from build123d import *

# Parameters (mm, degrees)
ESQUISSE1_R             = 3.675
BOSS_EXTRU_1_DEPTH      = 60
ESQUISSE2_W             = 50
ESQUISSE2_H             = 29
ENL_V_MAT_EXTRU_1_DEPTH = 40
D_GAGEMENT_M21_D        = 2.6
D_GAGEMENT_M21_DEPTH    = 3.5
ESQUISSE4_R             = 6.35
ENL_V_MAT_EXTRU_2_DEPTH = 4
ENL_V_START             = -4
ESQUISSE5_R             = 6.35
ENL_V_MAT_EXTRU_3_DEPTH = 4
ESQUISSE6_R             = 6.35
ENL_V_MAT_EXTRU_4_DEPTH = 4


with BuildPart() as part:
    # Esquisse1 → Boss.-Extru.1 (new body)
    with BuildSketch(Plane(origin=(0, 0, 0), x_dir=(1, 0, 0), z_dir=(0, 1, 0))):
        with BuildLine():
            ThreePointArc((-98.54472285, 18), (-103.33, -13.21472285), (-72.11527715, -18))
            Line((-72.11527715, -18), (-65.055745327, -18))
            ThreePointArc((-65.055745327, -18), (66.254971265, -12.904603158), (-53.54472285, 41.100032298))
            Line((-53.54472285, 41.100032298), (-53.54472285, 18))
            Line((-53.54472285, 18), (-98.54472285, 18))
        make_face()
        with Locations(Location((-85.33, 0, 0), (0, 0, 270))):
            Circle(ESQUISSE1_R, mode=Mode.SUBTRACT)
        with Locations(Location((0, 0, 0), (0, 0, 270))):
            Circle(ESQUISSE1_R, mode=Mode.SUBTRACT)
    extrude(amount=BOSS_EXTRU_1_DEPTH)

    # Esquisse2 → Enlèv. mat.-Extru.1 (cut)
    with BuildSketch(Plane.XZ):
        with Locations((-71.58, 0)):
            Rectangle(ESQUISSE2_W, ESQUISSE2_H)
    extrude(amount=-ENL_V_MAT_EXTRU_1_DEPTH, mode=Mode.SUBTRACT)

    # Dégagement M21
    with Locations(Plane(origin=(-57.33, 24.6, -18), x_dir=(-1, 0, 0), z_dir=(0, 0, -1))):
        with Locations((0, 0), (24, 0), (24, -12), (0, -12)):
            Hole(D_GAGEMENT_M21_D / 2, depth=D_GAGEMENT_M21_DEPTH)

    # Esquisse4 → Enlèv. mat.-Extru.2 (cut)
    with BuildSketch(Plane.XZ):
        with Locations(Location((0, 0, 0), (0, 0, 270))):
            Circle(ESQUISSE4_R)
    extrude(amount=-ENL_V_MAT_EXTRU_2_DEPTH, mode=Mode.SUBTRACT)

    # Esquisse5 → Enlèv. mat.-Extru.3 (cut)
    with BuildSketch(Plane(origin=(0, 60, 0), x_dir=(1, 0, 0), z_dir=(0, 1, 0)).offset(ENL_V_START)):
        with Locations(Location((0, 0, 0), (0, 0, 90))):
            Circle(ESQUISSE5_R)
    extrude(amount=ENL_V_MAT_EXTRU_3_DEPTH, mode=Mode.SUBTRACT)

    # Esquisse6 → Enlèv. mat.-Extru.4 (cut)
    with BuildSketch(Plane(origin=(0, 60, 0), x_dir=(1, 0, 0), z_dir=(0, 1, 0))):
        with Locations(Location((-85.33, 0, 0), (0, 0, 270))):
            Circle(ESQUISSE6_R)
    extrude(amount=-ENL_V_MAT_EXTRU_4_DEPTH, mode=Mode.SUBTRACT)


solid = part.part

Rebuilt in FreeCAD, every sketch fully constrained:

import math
import FreeCAD as App
import Part
import Sketcher

V = App.Vector


def add_polygon(sketch, points):
    """Adds a closed chain of lines whose ends are joined by coincident constraints."""
    first, n = sketch.GeometryCount, len(points)
    for a, b in zip(points, points[1:] + points[:1]):
        sketch.addGeometry(Part.LineSegment(App.Vector(*a, 0), App.Vector(*b, 0)), False)
    for i in range(n):
        sketch.addConstraint(Sketcher.Constraint("Coincident", first + i, 2, first + (i + 1) % n, 1))

doc = App.newDocument("Part")
body = doc.addObject("PartDesign::Body", "Body")

# Sketch on XZ plane
sketch1 = body.newObject("Sketcher::SketchObject", "Sketch")
sketch1.AttachmentSupport = (doc.getObject("XZ_Plane"), [""])
sketch1.MapMode = "FlatFace"
sketch1.addGeometry(Part.ArcOfCircle(Part.Circle(V(-85.3, 0, 0), V(0, 0, 1), 22.3), math.radians(54), math.radians(234)), False)
sketch1.addGeometry(Part.LineSegment(V(-72.1, 18, 0), V(-65.1, 18, 0)), False)
sketch1.addGeometry(Part.ArcOfCircle(Part.Circle(V(0, 0, 0), V(0, 0, 1), 67.5), math.radians(-142), math.radians(165)), False)
sketch1.addGeometry(Part.LineSegment(V(-53.5, -41.1, 0), V(-53.5, -18, 0)), False)
sketch1.addGeometry(Part.LineSegment(V(-53.5, -18, 0), V(-98.5, -18, 0)), False)
sketch1.addGeometry(Part.Circle(V(-85.3, 0, 0), V(0, 0, 1), 3.7), False)
sketch1.addGeometry(Part.Circle(V(0, 0, 0), V(0, 0, 1), 3.7), False)
sketch1.addConstraint(Sketcher.Constraint("Coincident", 0, 1, 1, 1))
sketch1.addConstraint(Sketcher.Constraint("Coincident", 1, 2, 2, 2))
sketch1.addConstraint(Sketcher.Constraint("Coincident", 2, 1, 3, 1))
sketch1.addConstraint(Sketcher.Constraint("Coincident", 3, 2, 4, 1))
sketch1.addConstraint(Sketcher.Constraint("Coincident", 4, 2, 0, 2))
sketch1.addConstraint(Sketcher.Constraint("Horizontal", 1))
sketch1.addConstraint(Sketcher.Constraint("Vertical", 3))
sketch1.addConstraint(Sketcher.Constraint("Horizontal", 4))
sketch1.addConstraint(Sketcher.Constraint("Coincident", 2, 3, -1, 1))
sketch1.addConstraint(Sketcher.Constraint("Coincident", 6, 3, -1, 1))
sketch1.addConstraint(Sketcher.Constraint("Coincident", 5, 3, 0, 3))
sketch1.addConstraint(Sketcher.Constraint("Equal", 5, 6))
sketch1.addConstraint(Sketcher.Constraint("PointOnObject", 0, 3, -1))
sketch1.addConstraint(Sketcher.Constraint("Radius", 2, 67.5))
sketch1.addConstraint(Sketcher.Constraint("Diameter", 5, 7.35))
sketch1.addConstraint(Sketcher.Constraint("DistanceX", 4, 2, 4, 1, 45.0))
sketch1.addConstraint(Sketcher.Constraint("Radius", 0, 22.33))
sketch1.addConstraint(Sketcher.Constraint("DistanceY", -1, 1, 0, 1, 18.0))
sketch1.addConstraint(Sketcher.Constraint("DistanceY", 3, 2, -1, 1, 18.0))
sketch1.addConstraint(Sketcher.Constraint("DistanceX", 0, 3, -1, 1, 85.33))
pad1 = body.newObject("PartDesign::Pad", "Pad")
pad1.Profile = sketch1
pad1.Length = 60
pad1.Reversed = True

# Sketch on XZ plane
sketch2 = body.newObject("Sketcher::SketchObject", "Sketch001")
sketch2.AttachmentSupport = (doc.getObject("XZ_Plane"), [""])
sketch2.MapMode = "FlatFace"
add_polygon(sketch2, [(-97, 14), (-97, -14), (-47, -14), (-47, 14)])  # lines 0-3
sketch2.addConstraint(Sketcher.Constraint("Vertical", 0))
sketch2.addConstraint(Sketcher.Constraint("Horizontal", 1))
sketch2.addConstraint(Sketcher.Constraint("Vertical", 2))
sketch2.addConstraint(Sketcher.Constraint("Horizontal", 3))
sketch2.addConstraint(Sketcher.Constraint("DistanceX", 1, 1, 1, 2, 50.0))
sketch2.addConstraint(Sketcher.Constraint("DistanceY", 0, 2, 0, 1, 29.0))
sketch2.addConstraint(Sketcher.Constraint("DistanceY", 0, 2, -1, 1, 14.5))
sketch2.addConstraint(Sketcher.Constraint("DistanceX", 0, 2, -1, 1, 96.58))
pocket1 = body.newObject("PartDesign::Pocket", "Pocket")
pocket1.Profile = sketch2
pocket1.Length = 40

# Sketch on XY plane
sketch3 = body.newObject("Sketcher::SketchObject", "Sketch002")
sketch3.AttachmentSupport = (doc.getObject("XY_Plane"), [""])
sketch3.MapMode = "FlatFace"
sketch3.AttachmentOffset = App.Placement(V(0, 0, -18), App.Rotation())
sketch3.addGeometry(Part.Circle(V(-57.3, 24.6, 0), V(0, 0, 1), 1.3), False)
sketch3.addGeometry(Part.Circle(V(-81.3, 24.6, 0), V(0, 0, 1), 1.3), False)
sketch3.addGeometry(Part.Circle(V(-81.3, 12.6, 0), V(0, 0, 1), 1.3), False)
sketch3.addGeometry(Part.Circle(V(-57.3, 12.6, 0), V(0, 0, 1), 1.3), False)
sketch3.addConstraint(Sketcher.Constraint("Equal", 0, 1))
sketch3.addConstraint(Sketcher.Constraint("Equal", 1, 2))
sketch3.addConstraint(Sketcher.Constraint("Equal", 2, 3))
sketch3.addConstraint(Sketcher.Constraint("Horizontal", 0, 3, 1, 3))
sketch3.addConstraint(Sketcher.Constraint("Horizontal", 2, 3, 3, 3))
sketch3.addConstraint(Sketcher.Constraint("Vertical", 1, 3, 2, 3))
sketch3.addConstraint(Sketcher.Constraint("Vertical", 0, 3, 3, 3))
sketch3.addConstraint(Sketcher.Constraint("Diameter", 0, 2.6))
sketch3.addConstraint(Sketcher.Constraint("DistanceX", 1, 3, 0, 3, 24.0))
sketch3.addConstraint(Sketcher.Constraint("DistanceY", 2, 3, 1, 3, 12.0))
sketch3.addConstraint(Sketcher.Constraint("DistanceY", -1, 1, 0, 3, 24.6))
sketch3.addConstraint(Sketcher.Constraint("DistanceX", 0, 3, -1, 1, 57.33))
doc.recompute()
hole = body.newObject("PartDesign::Hole", "Hole")
hole.Profile = sketch3
hole.ThreadType = "None"
hole.Diameter = 2.6
hole.DepthType = "Dimension"
hole.Depth = 3.5
hole.DrillPoint = "Flat"
hole.Reversed = True

# Sketch on XZ plane
sketch4 = body.newObject("Sketcher::SketchObject", "Sketch003")
sketch4.AttachmentSupport = (doc.getObject("XZ_Plane"), [""])
sketch4.MapMode = "FlatFace"
sketch4.addGeometry(Part.Circle(V(0, 0, 0), V(0, 0, 1), 6), False)
sketch4.addConstraint(Sketcher.Constraint("Coincident", 0, 3, -1, 1))
sketch4.addConstraint(Sketcher.Constraint("Diameter", 0, 12.7))
pocket2 = body.newObject("PartDesign::Pocket", "Pocket001")
pocket2.Profile = sketch4
pocket2.Length = 4

# Sketch on XZ plane
sketch5 = body.newObject("Sketcher::SketchObject", "Sketch004")
sketch5.AttachmentSupport = (doc.getObject("XZ_Plane"), [""])
sketch5.MapMode = "FlatFace"
sketch5.AttachmentOffset = App.Placement(V(0, 0, -56), App.Rotation())
sketch5.addGeometry(Part.Circle(V(0, 0, 0), V(0, 0, 1), 6), False)
sketch5.addConstraint(Sketcher.Constraint("Coincident", 0, 3, -1, 1))
sketch5.addConstraint(Sketcher.Constraint("Diameter", 0, 12.7))
pocket3 = body.newObject("PartDesign::Pocket", "Pocket002")
pocket3.Profile = sketch5
pocket3.Length = 4

# Sketch on XZ plane
sketch6 = body.newObject("Sketcher::SketchObject", "Sketch005")
sketch6.AttachmentSupport = (doc.getObject("XZ_Plane"), [""])
sketch6.MapMode = "FlatFace"
sketch6.AttachmentOffset = App.Placement(V(0, 0, -60), App.Rotation())
sketch6.addGeometry(Part.Circle(V(-85, 0, 0), V(0, 0, 1), 6), False)
sketch6.addConstraint(Sketcher.Constraint("PointOnObject", 0, 3, -1))
sketch6.addConstraint(Sketcher.Constraint("Diameter", 0, 12.7))
sketch6.addConstraint(Sketcher.Constraint("DistanceX", 0, 3, -1, 1, 85.33))
pocket4 = body.newObject("PartDesign::Pocket", "Pocket003")
pocket4.Profile = sketch6
pocket4.Length = 4
pocket4.Reversed = True

doc.recompute()
